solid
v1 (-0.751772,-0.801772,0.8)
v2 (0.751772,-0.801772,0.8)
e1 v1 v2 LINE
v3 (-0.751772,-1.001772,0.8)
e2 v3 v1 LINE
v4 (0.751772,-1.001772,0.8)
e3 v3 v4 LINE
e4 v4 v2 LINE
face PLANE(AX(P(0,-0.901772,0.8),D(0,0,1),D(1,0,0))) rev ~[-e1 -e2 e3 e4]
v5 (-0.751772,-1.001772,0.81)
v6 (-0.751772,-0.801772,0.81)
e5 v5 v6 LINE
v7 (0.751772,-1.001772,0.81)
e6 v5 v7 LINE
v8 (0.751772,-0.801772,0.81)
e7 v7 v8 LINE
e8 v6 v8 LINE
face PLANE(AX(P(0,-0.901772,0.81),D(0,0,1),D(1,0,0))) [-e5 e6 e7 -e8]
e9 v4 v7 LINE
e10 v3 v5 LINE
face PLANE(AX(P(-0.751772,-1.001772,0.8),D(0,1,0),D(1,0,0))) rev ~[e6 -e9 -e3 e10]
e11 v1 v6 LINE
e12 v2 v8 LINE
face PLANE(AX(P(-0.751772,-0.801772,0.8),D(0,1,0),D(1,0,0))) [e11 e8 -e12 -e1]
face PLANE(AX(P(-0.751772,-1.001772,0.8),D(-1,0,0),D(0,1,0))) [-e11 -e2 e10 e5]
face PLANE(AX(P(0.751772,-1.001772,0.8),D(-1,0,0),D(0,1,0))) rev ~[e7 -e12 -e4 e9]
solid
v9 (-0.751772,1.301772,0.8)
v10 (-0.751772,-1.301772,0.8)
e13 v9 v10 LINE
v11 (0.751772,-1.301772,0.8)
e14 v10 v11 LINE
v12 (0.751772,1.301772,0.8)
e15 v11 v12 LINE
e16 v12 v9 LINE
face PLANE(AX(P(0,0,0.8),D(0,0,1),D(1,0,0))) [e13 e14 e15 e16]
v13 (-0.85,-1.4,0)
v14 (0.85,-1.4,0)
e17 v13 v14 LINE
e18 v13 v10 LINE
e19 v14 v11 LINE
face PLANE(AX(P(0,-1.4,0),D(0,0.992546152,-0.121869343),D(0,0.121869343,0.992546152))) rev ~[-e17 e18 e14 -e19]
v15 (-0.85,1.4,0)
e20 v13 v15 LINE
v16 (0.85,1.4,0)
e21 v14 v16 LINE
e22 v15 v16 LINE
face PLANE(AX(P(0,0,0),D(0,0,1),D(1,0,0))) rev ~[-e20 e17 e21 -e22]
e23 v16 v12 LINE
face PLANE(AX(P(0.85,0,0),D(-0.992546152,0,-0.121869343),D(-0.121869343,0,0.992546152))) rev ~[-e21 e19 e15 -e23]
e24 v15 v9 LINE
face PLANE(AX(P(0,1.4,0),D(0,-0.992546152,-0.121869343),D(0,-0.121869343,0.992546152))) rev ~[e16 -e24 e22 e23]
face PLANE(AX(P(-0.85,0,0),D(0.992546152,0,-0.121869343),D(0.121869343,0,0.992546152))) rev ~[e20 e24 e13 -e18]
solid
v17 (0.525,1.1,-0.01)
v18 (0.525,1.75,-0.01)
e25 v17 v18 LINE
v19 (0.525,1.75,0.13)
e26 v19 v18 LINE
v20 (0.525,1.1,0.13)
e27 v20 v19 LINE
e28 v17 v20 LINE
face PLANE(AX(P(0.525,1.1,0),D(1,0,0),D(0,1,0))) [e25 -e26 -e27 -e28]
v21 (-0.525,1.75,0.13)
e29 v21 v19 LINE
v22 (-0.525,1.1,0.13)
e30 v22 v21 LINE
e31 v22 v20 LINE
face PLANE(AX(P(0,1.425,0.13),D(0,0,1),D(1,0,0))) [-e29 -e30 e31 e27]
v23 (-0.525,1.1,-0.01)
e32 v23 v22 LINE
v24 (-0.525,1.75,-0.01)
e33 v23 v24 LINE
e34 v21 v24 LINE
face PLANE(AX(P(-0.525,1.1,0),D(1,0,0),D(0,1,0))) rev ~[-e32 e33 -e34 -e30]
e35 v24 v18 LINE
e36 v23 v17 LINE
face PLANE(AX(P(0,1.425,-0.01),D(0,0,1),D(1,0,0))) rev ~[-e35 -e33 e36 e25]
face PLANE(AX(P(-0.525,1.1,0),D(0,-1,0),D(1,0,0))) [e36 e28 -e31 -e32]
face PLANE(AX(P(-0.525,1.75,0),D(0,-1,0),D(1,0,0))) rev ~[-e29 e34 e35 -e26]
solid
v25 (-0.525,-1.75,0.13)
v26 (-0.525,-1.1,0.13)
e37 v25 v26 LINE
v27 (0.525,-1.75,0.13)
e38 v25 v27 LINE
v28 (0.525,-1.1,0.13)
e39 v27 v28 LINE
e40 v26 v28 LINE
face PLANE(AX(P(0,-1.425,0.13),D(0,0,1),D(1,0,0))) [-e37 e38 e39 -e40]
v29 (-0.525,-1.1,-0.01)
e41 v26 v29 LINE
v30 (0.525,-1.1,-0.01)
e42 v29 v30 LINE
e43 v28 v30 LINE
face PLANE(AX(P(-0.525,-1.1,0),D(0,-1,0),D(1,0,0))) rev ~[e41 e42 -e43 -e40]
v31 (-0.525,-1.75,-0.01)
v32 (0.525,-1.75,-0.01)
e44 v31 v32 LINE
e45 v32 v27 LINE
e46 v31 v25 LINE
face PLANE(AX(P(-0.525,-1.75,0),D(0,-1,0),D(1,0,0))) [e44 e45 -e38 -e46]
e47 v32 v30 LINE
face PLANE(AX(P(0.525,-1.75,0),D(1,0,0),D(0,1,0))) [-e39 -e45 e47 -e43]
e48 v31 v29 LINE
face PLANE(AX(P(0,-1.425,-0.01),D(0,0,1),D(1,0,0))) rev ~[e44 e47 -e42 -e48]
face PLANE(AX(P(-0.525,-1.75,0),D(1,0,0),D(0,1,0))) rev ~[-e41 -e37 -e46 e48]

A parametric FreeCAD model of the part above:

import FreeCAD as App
import Part
import Sketcher

V = App.Vector

doc = App.newDocument("Part")
params = doc.addObject("Spreadsheet::Sheet", "Params")
for row, (alias, value) in enumerate([
    ("sketch1_width", "1.7 mm"),
    ("sketch1_height", "2.8 mm"),
    ("pad1_length", "0.8 mm"),
    ("pad1_taper", "-7 deg"),
    ("sketch2_width", "1.05 mm"),
    ("sketch2_height", "0.65 mm"),
    ("pad2_length", "0.13 mm"),
    ("pad2_length2", "0.01 mm"),
    ("sketch3_width", "1.05 mm"),
    ("sketch3_height", "0.65 mm"),
    ("pad3_length", "0.13 mm"),
    ("pad3_length2", "0.01 mm"),
    ("sketch4_height", "0.2 mm"),
    ("pad4_length", "0.01 mm"),
], start=1):
    params.set(f"A{row}", alias)
    params.set(f"B{row}", "=" + value)
    params.setAlias(f"B{row}", alias)

body = doc.addObject("PartDesign::Body", "Body")

# Sketch on XY plane
sketch1 = doc.addObject("Sketcher::SketchObject", "Sketch")
body.addObject(sketch1)
sketch1.AttachmentSupport = (doc.XY_Plane, [""])
sketch1.MapMode = "FlatFace"
sketch1.addGeometry([
    Part.LineSegment(V(-0.8, 1.4, 0), V(-0.8, -1.4, 0)),
    Part.LineSegment(V(-0.8, -1.4, 0), V(0.8, -1.4, 0)),
    Part.LineSegment(V(0.8, -1.4, 0), V(0.8, 1.4, 0)),
    Part.LineSegment(V(0.8, 1.4, 0), V(-0.8, 1.4, 0)),
], False)
sketch1.addConstraint([
    Sketcher.Constraint("Coincident", 0, 2, 1, 1),
    Sketcher.Constraint("Coincident", 1, 2, 2, 1),
    Sketcher.Constraint("Coincident", 2, 2, 3, 1),
    Sketcher.Constraint("Coincident", 3, 2, 0, 1),
    Sketcher.Constraint("Vertical", 0),
    Sketcher.Constraint("Horizontal", 1),
    Sketcher.Constraint("Vertical", 2),
    Sketcher.Constraint("Horizontal", 3),
    Sketcher.Constraint("Symmetric", 0, 2, 2, 2, -1, 1),
    Sketcher.Constraint("DistanceX", 1, 1, 1, 2, 1.7),
    Sketcher.Constraint("DistanceY", 0, 2, 0, 1, 2.8),
])
sketch1.setExpression("Constraints[9]", "Params.sketch1_width")
sketch1.setExpression("Constraints[10]", "Params.sketch1_height")
pad1 = doc.addObject("PartDesign::Pad", "Pad")
body.addObject(pad1)
pad1.Profile = sketch1
pad1.setExpression("Length", "Params.pad1_length")
pad1.setExpression("TaperAngle", "Params.pad1_taper")
body2 = doc.addObject("PartDesign::Body", "Body001")

# Sketch on XY plane
sketch2 = doc.addObject("Sketcher::SketchObject", "Sketch001")
body2.addObject(sketch2)
sketch2.AttachmentSupport = (doc.getObject("XY_Plane001"), [""])
sketch2.MapMode = "FlatFace"
sketch2.addGeometry([
    Part.LineSegment(V(-0.5, 1.8, 0), V(-0.5, 1.1, 0)),
    Part.LineSegment(V(-0.5, 1.1, 0), V(0.5, 1.1, 0)),
    Part.LineSegment(V(0.5, 1.1, 0), V(0.5, 1.8, 0)),
    Part.LineSegment(V(0.5, 1.8, 0), V(-0.5, 1.8, 0)),
], False)
sketch2.addConstraint([
    Sketcher.Constraint("Coincident", 0, 2, 1, 1),
    Sketcher.Constraint("Coincident", 1, 2, 2, 1),
    Sketcher.Constraint("Coincident", 2, 2, 3, 1),
    Sketcher.Constraint("Coincident", 3, 2, 0, 1),
    Sketcher.Constraint("Vertical", 0),
    Sketcher.Constraint("Horizontal", 1),
    Sketcher.Constraint("Vertical", 2),
    Sketcher.Constraint("Horizontal", 3),
    Sketcher.Constraint("DistanceX", 1, 1, 1, 2, 1.05),
    Sketcher.Constraint("DistanceY", 0, 2, 0, 1, 0.65),
    Sketcher.Constraint("DistanceY", -1, 1, 0, 2, 1.1),
    Sketcher.Constraint("DistanceX", 0, 2, -1, 1, 0.525),
])
sketch2.setExpression("Constraints[8]", "Params.sketch2_width")
sketch2.setExpression("Constraints[9]", "Params.sketch2_height")
pad2 = doc.addObject("PartDesign::Pad", "Pad001")
body2.addObject(pad2)
pad2.Profile = sketch2
pad2.Type = "TwoLengths"
pad2.setExpression("Length", "Params.pad2_length")
pad2.setExpression("Length2", "Params.pad2_length2")
body3 = doc.addObject("PartDesign::Body", "Body002")

# Sketch on XY plane
sketch3 = doc.addObject("Sketcher::SketchObject", "Sketch002")
body3.addObject(sketch3)
sketch3.AttachmentSupport = (doc.getObject("XY_Plane002"), [""])
sketch3.MapMode = "FlatFace"
sketch3.addGeometry([
    Part.LineSegment(V(-0.5, -1.1, 0), V(-0.5, -1.8, 0)),
    Part.LineSegment(V(-0.5, -1.8, 0), V(0.5, -1.8, 0)),
    Part.LineSegment(V(0.5, -1.8, 0), V(0.5, -1.1, 0)),
    Part.LineSegment(V(0.5, -1.1, 0), V(-0.5, -1.1, 0)),
], False)
sketch3.addConstraint([
    Sketcher.Constraint("Coincident", 0, 2, 1, 1),
    Sketcher.Constraint("Coincident", 1, 2, 2, 1),
    Sketcher.Constraint("Coincident", 2, 2, 3, 1),
    Sketcher.Constraint("Coincident", 3, 2, 0, 1),
    Sketcher.Constraint("Vertical", 0),
    Sketcher.Constraint("Horizontal", 1),
    Sketcher.Constraint("Vertical", 2),
    Sketcher.Constraint("Horizontal", 3),
    Sketcher.Constraint("DistanceX", 1, 1, 1, 2, 1.05),
    Sketcher.Constraint("DistanceY", 0, 2, 0, 1, 0.65),
    Sketcher.Constraint("DistanceY", 2, 2, -1, 1, 1.1),
    Sketcher.Constraint("DistanceX", 0, 2, -1, 1, 0.525),
])
sketch3.setExpression("Constraints[8]", "Params.sketch3_width")
sketch3.setExpression("Constraints[9]", "Params.sketch3_height")
pad3 = doc.addObject("PartDesign::Pad", "Pad002")
body3.addObject(pad3)
pad3.Profile = sketch3
pad3.Type = "TwoLengths"
pad3.setExpression("Length", "Params.pad3_length")
pad3.setExpression("Length2", "Params.pad3_length2")
body4 = doc.addObject("PartDesign::Body", "Body003")

# Sketch on XY plane
sketch4 = doc.addObject("Sketcher::SketchObject", "Sketch003")
body4.addObject(sketch4)
sketch4.AttachmentSupport = (doc.getObject("XY_Plane003"), [""])
sketch4.MapMode = "FlatFace"
sketch4.AttachmentOffset = App.Placement(V(0, 0, 0.8), App.Rotation())
sketch4.addGeometry([
    Part.LineSegment(V(-0.75, -0.8, 0), V(-0.75, -1, 0)),
    Part.LineSegment(V(-0.75, -1, 0), V(0.75, -1, 0)),
    Part.LineSegment(V(0.75, -1, 0), V(0.75, -0.8, 0)),
    Part.LineSegment(V(0.75, -0.8, 0), V(-0.75, -0.8, 0)),
], False)
sketch4.addConstraint([
    Sketcher.Constraint("Coincident", 0, 2, 1, 1),
    Sketcher.Constraint("Coincident", 1, 2, 2, 1),
    Sketcher.Constraint("Coincident", 2, 2, 3, 1),
    Sketcher.Constraint("Coincident", 3, 2, 0, 1),
    Sketcher.Constraint("Vertical", 0),
    Sketcher.Constraint("Horizontal", 1),
    Sketcher.Constraint("Vertical", 2),
    Sketcher.Constraint("Horizontal", 3),
    Sketcher.Constraint("DistanceY", 0, 2, 0, 1, 0.2),
    Sketcher.Constraint("DistanceX", 1, 1, 1, 2, 1.503545),
    Sketcher.Constraint("DistanceX", 0, 2, -1, 1, 0.751772),
    Sketcher.Constraint("DistanceY", 0, 2, -1, 1, 1.001772),
])
sketch4.setExpression("Constraints[8]", "Params.sketch4_height")
pad4 = doc.addObject("PartDesign::Pad", "Pad003")
body4.addObject(pad4)
pad4.Profile = sketch4
pad4.setExpression("Length", "Params.pad4_length")

doc.recompute()
